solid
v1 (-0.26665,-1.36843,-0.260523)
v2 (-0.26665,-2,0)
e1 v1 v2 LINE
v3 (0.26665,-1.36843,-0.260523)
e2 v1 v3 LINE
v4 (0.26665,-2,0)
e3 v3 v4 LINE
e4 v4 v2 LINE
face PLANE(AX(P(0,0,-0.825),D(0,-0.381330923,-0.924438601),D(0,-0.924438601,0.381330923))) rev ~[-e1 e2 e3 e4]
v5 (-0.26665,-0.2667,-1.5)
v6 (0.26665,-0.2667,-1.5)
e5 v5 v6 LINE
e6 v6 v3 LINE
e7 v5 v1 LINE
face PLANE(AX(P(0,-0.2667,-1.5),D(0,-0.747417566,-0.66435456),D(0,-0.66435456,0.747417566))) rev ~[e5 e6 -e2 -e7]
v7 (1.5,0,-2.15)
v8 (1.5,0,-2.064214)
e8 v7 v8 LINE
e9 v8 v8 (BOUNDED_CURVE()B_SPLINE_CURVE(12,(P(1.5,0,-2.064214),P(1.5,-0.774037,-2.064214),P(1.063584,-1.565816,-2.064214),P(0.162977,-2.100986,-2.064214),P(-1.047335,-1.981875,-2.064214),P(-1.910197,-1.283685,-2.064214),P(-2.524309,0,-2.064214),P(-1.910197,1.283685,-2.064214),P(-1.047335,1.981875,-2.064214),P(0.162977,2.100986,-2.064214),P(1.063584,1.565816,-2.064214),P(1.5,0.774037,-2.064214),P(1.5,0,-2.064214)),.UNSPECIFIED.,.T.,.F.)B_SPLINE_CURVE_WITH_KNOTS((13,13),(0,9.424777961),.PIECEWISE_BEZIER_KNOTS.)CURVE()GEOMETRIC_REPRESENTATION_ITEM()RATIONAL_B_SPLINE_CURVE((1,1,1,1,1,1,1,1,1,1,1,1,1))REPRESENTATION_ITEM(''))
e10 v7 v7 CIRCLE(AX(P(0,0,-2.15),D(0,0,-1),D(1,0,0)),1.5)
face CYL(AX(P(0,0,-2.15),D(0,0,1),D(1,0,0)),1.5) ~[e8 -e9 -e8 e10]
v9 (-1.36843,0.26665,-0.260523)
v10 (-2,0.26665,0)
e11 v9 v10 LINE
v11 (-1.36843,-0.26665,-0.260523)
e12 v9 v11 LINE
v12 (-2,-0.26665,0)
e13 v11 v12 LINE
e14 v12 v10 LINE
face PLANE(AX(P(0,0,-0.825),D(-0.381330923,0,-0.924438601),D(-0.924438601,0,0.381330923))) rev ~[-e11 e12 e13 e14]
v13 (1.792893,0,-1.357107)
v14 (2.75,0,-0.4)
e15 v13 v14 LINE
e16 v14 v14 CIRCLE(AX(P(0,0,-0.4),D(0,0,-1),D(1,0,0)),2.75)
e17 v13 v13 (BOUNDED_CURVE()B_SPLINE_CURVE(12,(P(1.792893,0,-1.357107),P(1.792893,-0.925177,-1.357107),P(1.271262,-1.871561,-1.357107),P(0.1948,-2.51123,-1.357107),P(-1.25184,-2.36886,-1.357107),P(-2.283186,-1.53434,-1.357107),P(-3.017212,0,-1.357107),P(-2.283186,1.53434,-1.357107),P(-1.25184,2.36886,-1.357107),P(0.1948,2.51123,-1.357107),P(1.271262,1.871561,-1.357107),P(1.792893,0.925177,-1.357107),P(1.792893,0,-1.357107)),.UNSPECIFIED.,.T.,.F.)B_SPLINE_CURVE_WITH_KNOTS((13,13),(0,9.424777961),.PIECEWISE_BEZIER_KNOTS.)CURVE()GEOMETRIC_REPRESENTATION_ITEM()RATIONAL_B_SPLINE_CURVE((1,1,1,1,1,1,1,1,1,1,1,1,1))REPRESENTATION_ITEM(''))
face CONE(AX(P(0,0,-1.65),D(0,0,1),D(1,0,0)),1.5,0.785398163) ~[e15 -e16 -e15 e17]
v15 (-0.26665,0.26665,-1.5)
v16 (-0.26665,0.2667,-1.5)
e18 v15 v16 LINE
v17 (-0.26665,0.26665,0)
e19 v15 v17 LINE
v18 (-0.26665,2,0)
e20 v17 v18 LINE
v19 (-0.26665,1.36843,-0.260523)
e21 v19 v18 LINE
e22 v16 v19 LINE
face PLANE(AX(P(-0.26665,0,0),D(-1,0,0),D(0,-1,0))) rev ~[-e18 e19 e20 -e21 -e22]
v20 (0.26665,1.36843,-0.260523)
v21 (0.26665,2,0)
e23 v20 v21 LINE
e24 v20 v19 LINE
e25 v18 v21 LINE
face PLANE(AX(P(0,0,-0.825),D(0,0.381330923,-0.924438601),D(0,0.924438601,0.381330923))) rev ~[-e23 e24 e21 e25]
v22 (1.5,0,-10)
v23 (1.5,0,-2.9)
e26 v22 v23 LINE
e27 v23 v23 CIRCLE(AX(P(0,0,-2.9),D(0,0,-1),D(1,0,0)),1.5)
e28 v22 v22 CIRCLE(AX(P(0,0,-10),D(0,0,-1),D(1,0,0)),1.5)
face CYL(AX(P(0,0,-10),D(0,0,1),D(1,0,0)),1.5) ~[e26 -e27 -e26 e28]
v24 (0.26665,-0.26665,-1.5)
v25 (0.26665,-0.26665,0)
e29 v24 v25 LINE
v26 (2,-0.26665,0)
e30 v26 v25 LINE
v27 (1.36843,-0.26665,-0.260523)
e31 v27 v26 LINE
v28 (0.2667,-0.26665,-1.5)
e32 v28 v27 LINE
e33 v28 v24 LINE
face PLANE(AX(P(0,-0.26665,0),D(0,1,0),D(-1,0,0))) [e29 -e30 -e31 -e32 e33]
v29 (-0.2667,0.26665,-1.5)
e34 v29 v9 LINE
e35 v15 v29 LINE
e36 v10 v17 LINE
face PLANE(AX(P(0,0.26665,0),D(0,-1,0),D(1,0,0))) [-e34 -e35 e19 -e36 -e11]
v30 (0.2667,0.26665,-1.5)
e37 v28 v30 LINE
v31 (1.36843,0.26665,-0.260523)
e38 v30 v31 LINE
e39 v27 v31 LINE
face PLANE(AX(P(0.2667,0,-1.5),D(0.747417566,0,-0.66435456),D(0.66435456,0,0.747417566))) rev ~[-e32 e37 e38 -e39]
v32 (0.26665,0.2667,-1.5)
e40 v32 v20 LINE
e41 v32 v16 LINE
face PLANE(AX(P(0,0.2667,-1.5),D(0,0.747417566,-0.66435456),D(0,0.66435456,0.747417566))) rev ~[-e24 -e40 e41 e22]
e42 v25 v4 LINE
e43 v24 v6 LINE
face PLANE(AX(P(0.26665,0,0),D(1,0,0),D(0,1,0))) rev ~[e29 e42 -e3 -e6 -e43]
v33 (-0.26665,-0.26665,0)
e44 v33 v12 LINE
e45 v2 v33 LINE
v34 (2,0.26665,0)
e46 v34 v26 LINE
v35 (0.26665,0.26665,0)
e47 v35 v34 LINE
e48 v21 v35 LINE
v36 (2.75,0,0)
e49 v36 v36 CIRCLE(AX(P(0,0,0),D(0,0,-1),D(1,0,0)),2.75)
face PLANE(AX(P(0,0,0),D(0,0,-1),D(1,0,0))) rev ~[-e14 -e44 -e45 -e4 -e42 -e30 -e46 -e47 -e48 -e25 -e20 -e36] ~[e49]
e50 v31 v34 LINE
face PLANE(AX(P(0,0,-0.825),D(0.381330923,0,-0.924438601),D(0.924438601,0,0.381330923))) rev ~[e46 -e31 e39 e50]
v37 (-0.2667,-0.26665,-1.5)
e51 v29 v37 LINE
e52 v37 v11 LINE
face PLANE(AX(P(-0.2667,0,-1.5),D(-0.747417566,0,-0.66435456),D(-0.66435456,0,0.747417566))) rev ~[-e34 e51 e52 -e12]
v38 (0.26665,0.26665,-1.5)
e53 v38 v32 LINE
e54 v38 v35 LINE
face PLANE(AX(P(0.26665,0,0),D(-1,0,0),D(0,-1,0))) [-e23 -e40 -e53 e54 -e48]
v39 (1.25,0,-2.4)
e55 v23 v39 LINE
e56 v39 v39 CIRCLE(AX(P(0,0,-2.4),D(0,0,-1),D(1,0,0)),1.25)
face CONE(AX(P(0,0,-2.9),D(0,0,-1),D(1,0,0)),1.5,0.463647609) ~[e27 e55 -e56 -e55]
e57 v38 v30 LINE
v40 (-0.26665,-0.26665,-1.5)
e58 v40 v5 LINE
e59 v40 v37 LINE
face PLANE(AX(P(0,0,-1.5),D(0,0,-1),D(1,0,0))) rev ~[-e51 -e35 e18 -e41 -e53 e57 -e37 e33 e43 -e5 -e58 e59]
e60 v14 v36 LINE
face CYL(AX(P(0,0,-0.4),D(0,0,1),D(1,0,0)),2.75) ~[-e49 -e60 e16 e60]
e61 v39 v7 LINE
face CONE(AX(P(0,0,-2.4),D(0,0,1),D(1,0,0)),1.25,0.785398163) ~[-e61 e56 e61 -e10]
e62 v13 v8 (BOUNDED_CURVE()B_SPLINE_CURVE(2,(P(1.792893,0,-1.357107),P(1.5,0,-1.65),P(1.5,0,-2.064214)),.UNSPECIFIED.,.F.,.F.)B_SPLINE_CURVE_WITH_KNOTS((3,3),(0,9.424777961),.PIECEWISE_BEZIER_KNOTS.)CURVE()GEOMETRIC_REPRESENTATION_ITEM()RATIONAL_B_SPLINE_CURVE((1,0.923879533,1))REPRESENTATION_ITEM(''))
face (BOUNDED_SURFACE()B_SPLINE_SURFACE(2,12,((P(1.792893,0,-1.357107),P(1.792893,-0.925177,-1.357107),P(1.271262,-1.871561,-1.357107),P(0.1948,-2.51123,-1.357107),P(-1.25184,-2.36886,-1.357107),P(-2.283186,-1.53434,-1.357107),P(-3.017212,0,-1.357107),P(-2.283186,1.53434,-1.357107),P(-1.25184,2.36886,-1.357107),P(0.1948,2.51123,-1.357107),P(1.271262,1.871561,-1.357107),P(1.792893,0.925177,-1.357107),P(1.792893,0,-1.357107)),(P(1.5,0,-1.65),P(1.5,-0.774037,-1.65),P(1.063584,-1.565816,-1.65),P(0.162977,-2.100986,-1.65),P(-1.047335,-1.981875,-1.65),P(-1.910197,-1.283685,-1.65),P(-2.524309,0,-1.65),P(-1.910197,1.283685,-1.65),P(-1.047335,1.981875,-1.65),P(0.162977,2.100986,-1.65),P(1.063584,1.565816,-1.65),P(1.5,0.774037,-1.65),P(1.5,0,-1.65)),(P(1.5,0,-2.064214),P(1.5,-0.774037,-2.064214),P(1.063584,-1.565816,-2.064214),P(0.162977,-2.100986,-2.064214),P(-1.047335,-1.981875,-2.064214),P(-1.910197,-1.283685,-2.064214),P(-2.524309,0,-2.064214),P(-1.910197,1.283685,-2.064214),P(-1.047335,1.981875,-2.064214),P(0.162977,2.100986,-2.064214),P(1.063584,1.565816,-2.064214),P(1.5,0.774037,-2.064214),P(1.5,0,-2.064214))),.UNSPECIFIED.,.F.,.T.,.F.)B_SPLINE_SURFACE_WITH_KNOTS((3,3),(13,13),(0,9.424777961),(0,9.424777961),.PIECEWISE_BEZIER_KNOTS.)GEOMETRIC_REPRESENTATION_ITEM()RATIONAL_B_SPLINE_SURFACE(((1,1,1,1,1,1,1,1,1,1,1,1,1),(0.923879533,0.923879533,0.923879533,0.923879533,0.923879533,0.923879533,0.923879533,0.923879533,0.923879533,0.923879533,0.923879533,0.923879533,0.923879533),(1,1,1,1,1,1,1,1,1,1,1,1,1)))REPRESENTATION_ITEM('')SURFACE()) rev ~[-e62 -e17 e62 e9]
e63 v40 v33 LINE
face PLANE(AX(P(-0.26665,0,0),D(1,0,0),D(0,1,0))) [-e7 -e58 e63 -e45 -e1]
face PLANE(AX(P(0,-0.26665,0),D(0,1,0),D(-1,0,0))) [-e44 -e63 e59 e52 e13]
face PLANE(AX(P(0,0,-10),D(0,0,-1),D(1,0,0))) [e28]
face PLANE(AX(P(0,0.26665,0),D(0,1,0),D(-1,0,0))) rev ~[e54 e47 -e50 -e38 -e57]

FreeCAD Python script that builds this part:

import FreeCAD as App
import Part
import Sketcher
from FreeCAD import Vector
Q = App.Units.Quantity


def edges_at(feature, points):
    """Names of the edges that pass closest to the given points."""
    edges = feature.Shape.Edges
    near = lambda p: min(range(len(edges)), key=lambda i: edges[i].distToShape(Part.Vertex(*p))[0])
    return sorted({f"Edge{near(p) + 1}" for p in points})

doc = App.newDocument("Part")
body = doc.addObject("PartDesign::Body", "Body")

# Sketch on XZ plane
sketch1 = body.newObject("Sketcher::SketchObject", "Sketch")
sketch1.AttachmentSupport = (doc.getObject("XZ_Plane"), [""])
sketch1.MapMode = "FlatFace"
sketch1.addGeometry([
    Part.LineSegment(Vector(0, 0, 0), Vector(2.75, 0, 0)),  # 0
    Part.LineSegment(Vector(2.75, 0, 0), Vector(2.75, -0.4, 0)),  # 1
    Part.LineSegment(Vector(2.75, -0.4, 0), Vector(1.5, -1.65, 0)),  # 2
    Part.LineSegment(Vector(1.5, -1.65, 0), Vector(1.5, -2.15, 0)),  # 3
    Part.LineSegment(Vector(1.5, -2.15, 0), Vector(1.25, -2.4, 0)),  # 4
    Part.LineSegment(Vector(1.25, -2.4, 0), Vector(1.5, -2.9, 0)),  # 5
    Part.LineSegment(Vector(1.5, -2.9, 0), Vector(1.5, -10, 0)),  # 6
    Part.LineSegment(Vector(1.5, -10, 0), Vector(0, -10, 0)),  # 7
    Part.LineSegment(Vector(0, -10, 0), Vector(0, 0, 0)),  # 8
], False)
sketch1.addConstraint([
    Sketcher.Constraint("Coincident", 0, 2, 1, 1),
    Sketcher.Constraint("Coincident", 1, 2, 2, 1),
    Sketcher.Constraint("Coincident", 2, 2, 3, 1),
    Sketcher.Constraint("Coincident", 3, 2, 4, 1),
    Sketcher.Constraint("Coincident", 4, 2, 5, 1),
    Sketcher.Constraint("Coincident", 5, 2, 6, 1),
    Sketcher.Constraint("Coincident", 6, 2, 7, 1),
    Sketcher.Constraint("Coincident", 7, 2, 8, 1),
    Sketcher.Constraint("Coincident", 8, 2, 0, 1),
    Sketcher.Constraint("Horizontal", 0),
    Sketcher.Constraint("Vertical", 1),
    Sketcher.Constraint("Vertical", 3),
    Sketcher.Constraint("Vertical", 6),
    Sketcher.Constraint("Horizontal", 7),
    Sketcher.Constraint("Vertical", 8),
    Sketcher.Constraint("Coincident", 8, 2, -1, 1),
    Sketcher.Constraint("Parallel", 2, 4),
    Sketcher.Constraint("Vertical", 3, 2, 5, 2),
    Sketcher.Constraint("DistanceY", 8, 1, 8, 2, Q("10 mm")),
    Sketcher.Constraint("Angle", 2, Q("-135 deg")),
    Sketcher.Constraint("DistanceX", 7, 2, 7, 1, Q("1.5 mm")),
    Sketcher.Constraint("DistanceY", 3, 2, 3, 1, Q("0.5 mm")),
    Sketcher.Constraint("DistanceX", 0, 1, 0, 2, Q("2.75 mm")),
    Sketcher.Constraint("DistanceX", 4, 2, 1, 2, Q("1.5 mm")),
    Sketcher.Constraint("DistanceY", 5, 2, 4, 2, Q("0.5 mm")),
    Sketcher.Constraint("DistanceY", 2, 2, -1, 1, Q("1.65 mm")),
])
revolution = body.newObject("PartDesign::Revolution", "Revolution")
revolution.Profile = sketch1
revolution.ReferenceAxis = (sketch1, ["V_Axis"])
revolution.Angle = 360

# Sketch on XZ plane
sketch2 = body.newObject("Sketcher::SketchObject", "Sketch001")
sketch2.AttachmentSupport = (doc.getObject("XZ_Plane"), [""])
sketch2.MapMode = "FlatFace"
sketch2.addGeometry([
    Part.LineSegment(Vector(0, 0, 0), Vector(1.6, 0, 0)),
    Part.LineSegment(Vector(1.6, 0, 0), Vector(0.27, -1.5, 0)),
    Part.LineSegment(Vector(0.27, -1.5, 0), Vector(0, -1.5, 0)),
    Part.LineSegment(Vector(0, -1.5, 0), Vector(0, 0, 0)),
], False)
sketch2.addConstraint([
    Sketcher.Constraint("Coincident", 0, 2, 1, 1),
    Sketcher.Constraint("Coincident", 1, 2, 2, 1),
    Sketcher.Constraint("Coincident", 2, 2, 3, 1),
    Sketcher.Constraint("Coincident", 3, 2, 0, 1),
    Sketcher.Constraint("Horizontal", 0),
    Sketcher.Constraint("Horizontal", 2),
    Sketcher.Constraint("Vertical", 3),
    Sketcher.Constraint("Coincident", 3, 2, -1, 1),
    Sketcher.Constraint("DistanceX", 0, 1, 0, 2, Q("1.6 mm")),
    Sketcher.Constraint("DistanceY", 3, 1, 3, 2, Q("1.5 mm")),
    Sketcher.Constraint("DistanceX", 2, 2, 2, 1, Q("0.2667 mm")),
])
pocket1 = body.newObject("PartDesign::Pocket", "Pocket")
pocket1.Profile = sketch2
pocket1.Length = 0.5333
pocket1.Midplane = True
doc.recompute()

polarpattern = body.newObject("PartDesign::PolarPattern", "PolarPattern")
polarpattern.Originals = [pocket1]
polarpattern.Axis = (doc.getObject("Z_Axis"), [""])
polarpattern.Angle = 360
polarpattern.Occurrences = 4
body.Tip = polarpattern

# Sketch on XZ plane
sketch3 = body.newObject("Sketcher::SketchObject", "Sketch002")
sketch3.AttachmentSupport = (doc.getObject("XZ_Plane"), [""])
sketch3.MapMode = "FlatFace"
sketch3.addGeometry([
    Part.LineSegment(Vector(2, 0, 0), Vector(0, -0.8, 0)),
    Part.LineSegment(Vector(0, -0.8, 0), Vector(0, 0, 0)),
    Part.LineSegment(Vector(0, 0, 0), Vector(2, 0, 0)),
], False)
sketch3.addConstraint([
    Sketcher.Constraint("Coincident", 0, 2, 1, 1),
    Sketcher.Constraint("Coincident", 1, 2, 2, 1),
    Sketcher.Constraint("Coincident", 2, 2, 0, 1),
    Sketcher.Constraint("Vertical", 1),
    Sketcher.Constraint("Horizontal", 2),
    Sketcher.Constraint("Coincident", 1, 2, -1, 1),
    Sketcher.Constraint("DistanceX", 2, 1, 2, 2, Q("2 mm")),
    Sketcher.Constraint("DistanceY", 1, 1, 1, 2, Q("0.825 mm")),
])
pocket2 = body.newObject("PartDesign::Pocket", "Pocket001")
pocket2.Profile = sketch3
pocket2.Length = 0.5333
pocket2.Midplane = True
doc.recompute()

polarpattern2 = body.newObject("PartDesign::PolarPattern", "PolarPattern001")
polarpattern2.Originals = [pocket2]
polarpattern2.Axis = (doc.getObject("Z_Axis"), [""])
polarpattern2.Angle = 360
polarpattern2.Occurrences = 4
body.Tip = polarpattern2
doc.recompute()

fillet = body.newObject("PartDesign::Fillet", "Fillet")
fillet.Base = (polarpattern2, edges_at(polarpattern2, [(-1.5, 0, -1.65)]))
fillet.Radius = 1

doc.recompute()
